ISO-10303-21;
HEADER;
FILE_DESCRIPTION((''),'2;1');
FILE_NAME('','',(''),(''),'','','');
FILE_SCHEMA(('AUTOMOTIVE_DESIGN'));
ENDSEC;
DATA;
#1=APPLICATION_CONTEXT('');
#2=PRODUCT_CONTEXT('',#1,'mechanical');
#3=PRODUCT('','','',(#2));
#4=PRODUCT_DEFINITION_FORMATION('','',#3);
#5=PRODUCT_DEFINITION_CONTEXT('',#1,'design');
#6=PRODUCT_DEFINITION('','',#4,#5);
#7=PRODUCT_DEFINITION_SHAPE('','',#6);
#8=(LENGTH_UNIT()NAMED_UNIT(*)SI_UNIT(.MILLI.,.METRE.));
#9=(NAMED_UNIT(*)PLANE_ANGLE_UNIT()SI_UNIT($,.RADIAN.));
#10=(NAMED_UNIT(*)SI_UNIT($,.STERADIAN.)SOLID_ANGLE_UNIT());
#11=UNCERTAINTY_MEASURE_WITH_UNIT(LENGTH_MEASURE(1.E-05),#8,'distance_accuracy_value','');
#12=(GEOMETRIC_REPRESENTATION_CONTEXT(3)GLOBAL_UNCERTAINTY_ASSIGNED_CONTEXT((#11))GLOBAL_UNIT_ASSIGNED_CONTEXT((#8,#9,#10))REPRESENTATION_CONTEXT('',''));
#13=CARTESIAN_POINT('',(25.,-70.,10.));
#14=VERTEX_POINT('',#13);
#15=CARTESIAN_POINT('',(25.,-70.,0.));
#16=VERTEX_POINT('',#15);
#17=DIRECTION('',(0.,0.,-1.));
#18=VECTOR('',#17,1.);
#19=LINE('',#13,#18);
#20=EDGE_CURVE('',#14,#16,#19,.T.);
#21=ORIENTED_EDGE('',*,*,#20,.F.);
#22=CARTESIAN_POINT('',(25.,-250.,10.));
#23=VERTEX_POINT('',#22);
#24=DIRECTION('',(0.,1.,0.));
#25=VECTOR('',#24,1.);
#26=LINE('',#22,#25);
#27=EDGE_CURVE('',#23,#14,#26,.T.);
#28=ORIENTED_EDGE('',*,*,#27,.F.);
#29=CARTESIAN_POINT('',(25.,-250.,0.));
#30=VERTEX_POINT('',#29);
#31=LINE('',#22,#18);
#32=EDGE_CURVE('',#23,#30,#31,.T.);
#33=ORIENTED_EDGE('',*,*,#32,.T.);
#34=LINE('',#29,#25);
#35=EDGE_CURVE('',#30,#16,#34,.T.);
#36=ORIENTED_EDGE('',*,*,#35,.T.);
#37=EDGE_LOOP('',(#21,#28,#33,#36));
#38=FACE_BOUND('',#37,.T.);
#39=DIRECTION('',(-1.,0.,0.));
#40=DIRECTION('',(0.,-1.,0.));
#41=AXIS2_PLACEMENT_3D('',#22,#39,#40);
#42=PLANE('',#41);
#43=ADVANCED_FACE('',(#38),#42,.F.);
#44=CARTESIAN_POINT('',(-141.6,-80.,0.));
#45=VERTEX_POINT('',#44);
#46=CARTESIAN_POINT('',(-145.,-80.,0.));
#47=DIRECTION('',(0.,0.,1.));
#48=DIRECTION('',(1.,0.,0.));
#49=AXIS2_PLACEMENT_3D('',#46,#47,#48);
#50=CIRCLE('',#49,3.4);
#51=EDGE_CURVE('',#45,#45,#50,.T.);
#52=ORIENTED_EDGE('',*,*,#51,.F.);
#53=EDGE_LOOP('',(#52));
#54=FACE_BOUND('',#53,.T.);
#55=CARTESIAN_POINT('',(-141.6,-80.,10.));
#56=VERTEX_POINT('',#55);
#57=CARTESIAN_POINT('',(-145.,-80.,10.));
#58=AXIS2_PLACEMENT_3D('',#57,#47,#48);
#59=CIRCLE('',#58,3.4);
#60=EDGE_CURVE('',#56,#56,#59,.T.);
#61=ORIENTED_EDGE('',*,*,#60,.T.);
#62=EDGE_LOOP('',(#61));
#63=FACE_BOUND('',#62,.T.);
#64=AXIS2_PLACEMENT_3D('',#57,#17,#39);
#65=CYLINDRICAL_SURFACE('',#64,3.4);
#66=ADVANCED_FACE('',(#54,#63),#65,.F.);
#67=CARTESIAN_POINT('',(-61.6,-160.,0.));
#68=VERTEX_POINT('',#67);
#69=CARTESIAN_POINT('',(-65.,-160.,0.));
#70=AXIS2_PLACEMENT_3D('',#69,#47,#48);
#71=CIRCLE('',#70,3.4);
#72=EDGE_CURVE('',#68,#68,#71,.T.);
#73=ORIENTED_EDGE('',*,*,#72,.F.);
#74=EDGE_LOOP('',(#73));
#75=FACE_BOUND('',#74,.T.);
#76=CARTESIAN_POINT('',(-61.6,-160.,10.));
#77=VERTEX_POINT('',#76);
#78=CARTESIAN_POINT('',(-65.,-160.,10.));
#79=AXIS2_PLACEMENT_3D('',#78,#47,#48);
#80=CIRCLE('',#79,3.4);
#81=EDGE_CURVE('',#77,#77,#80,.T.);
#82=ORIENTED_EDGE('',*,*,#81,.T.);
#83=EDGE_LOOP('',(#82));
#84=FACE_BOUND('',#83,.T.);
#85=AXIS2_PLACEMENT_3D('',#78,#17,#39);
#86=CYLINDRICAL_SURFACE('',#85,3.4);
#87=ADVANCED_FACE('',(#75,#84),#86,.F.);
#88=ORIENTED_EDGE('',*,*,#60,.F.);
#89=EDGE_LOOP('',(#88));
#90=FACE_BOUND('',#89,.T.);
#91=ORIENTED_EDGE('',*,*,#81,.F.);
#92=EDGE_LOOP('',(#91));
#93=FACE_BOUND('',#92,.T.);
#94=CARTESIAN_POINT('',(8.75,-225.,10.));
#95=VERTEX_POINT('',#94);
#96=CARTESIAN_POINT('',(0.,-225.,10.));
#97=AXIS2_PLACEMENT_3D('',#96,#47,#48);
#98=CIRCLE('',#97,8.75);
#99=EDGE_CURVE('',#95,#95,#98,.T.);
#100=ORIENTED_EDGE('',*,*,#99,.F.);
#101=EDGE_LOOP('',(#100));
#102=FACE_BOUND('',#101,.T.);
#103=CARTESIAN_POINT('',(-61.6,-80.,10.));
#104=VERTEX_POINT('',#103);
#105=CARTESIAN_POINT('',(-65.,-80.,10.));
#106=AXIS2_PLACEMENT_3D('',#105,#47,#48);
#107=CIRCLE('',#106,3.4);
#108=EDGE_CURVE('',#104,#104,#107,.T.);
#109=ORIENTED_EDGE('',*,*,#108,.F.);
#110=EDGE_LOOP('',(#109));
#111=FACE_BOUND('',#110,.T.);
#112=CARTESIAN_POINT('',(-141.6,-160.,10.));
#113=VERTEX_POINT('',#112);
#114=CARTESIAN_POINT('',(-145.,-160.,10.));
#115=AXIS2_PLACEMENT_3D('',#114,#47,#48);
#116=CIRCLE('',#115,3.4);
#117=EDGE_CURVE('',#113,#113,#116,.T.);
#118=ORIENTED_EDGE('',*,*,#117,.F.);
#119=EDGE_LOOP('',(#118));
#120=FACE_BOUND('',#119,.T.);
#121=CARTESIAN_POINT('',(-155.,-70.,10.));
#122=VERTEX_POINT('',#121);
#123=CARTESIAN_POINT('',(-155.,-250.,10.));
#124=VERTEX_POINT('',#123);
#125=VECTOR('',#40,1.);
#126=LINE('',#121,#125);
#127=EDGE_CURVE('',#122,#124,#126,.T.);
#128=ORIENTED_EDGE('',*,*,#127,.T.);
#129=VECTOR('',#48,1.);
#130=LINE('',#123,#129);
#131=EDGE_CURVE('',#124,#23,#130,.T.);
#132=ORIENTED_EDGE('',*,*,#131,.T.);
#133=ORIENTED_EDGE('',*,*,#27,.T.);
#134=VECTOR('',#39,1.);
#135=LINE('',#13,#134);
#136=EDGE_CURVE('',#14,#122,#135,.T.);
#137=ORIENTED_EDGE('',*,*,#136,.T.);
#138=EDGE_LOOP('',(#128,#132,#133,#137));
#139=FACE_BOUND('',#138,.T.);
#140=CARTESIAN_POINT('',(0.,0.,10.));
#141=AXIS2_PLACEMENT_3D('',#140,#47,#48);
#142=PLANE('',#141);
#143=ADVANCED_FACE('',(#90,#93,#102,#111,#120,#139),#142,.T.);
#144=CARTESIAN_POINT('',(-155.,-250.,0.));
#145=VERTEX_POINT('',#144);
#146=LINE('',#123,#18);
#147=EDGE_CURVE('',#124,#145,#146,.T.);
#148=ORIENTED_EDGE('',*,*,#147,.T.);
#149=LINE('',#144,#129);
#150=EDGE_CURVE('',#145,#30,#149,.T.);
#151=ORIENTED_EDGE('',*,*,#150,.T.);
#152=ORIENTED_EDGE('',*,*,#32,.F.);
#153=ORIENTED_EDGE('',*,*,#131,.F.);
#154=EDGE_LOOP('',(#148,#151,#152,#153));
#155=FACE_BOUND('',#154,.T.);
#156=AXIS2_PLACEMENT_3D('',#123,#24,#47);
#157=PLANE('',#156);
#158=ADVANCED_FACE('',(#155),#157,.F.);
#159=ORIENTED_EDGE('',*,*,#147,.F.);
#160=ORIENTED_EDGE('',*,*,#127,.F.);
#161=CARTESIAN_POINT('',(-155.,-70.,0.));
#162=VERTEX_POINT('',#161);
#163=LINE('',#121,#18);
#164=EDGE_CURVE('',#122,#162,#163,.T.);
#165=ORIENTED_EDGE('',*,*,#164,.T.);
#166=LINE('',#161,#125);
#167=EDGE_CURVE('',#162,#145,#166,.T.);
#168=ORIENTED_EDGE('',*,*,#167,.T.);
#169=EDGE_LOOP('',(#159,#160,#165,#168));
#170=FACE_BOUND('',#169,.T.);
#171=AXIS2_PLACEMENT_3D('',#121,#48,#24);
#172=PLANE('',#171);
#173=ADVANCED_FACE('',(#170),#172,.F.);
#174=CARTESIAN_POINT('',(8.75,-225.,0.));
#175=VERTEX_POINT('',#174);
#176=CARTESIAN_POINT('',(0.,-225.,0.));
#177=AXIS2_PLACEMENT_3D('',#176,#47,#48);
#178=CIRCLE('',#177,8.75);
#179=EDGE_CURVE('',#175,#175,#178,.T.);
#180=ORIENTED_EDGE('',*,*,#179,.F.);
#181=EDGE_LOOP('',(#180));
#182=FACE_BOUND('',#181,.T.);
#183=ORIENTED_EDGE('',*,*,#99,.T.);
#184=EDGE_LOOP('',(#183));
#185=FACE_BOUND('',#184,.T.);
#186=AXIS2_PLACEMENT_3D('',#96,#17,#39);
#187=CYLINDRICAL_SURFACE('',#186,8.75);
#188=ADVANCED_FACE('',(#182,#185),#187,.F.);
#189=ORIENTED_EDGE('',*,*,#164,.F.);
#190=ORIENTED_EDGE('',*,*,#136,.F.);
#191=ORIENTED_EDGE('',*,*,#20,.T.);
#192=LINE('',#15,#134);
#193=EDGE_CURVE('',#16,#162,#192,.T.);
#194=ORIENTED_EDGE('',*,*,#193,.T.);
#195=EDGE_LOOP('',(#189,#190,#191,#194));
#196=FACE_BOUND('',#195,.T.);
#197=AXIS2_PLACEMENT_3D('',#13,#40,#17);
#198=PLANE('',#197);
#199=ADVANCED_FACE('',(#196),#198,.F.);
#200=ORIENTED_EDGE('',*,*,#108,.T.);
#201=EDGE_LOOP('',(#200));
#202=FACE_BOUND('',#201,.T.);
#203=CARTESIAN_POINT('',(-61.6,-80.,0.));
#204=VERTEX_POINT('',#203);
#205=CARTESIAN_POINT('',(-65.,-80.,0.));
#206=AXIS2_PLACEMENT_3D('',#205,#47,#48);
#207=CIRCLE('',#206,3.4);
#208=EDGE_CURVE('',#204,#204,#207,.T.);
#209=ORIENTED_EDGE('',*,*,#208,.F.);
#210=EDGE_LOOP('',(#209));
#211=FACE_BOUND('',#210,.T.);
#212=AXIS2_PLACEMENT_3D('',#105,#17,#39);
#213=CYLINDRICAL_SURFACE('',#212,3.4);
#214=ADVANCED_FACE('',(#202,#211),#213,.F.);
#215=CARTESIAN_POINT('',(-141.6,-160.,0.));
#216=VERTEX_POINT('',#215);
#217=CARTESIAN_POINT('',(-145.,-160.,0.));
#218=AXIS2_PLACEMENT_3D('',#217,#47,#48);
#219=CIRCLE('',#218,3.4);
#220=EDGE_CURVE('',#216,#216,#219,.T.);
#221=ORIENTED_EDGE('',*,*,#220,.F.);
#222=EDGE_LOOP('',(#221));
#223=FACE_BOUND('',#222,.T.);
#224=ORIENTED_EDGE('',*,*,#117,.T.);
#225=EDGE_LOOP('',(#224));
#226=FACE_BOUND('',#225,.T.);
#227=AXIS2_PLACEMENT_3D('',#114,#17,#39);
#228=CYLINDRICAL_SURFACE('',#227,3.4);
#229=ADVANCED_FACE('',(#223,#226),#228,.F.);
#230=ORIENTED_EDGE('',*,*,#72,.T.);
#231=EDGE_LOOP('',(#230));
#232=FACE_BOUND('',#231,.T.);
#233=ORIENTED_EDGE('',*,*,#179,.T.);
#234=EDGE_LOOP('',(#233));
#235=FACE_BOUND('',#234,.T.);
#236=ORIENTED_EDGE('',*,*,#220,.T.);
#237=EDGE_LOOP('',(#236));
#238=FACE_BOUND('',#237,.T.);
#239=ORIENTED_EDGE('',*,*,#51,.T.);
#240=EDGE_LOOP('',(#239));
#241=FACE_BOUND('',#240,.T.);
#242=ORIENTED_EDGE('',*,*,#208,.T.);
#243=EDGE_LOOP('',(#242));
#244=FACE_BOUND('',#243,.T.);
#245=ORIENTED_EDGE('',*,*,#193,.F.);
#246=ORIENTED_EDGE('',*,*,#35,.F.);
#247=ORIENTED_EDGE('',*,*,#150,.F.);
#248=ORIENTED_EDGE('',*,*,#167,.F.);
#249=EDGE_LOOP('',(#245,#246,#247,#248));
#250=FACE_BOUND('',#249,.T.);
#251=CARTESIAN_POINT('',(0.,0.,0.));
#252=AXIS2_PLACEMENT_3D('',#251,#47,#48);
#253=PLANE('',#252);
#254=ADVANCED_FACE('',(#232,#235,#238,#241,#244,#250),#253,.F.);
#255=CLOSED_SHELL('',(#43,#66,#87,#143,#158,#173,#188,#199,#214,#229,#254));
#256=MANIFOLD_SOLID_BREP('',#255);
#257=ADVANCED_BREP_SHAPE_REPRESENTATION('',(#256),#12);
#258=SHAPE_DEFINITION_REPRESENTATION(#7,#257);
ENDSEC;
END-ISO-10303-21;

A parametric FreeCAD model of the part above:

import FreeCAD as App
import Part
import Sketcher

V = App.Vector
Q = App.Units.Quantity

doc = App.newDocument("Part")
params = doc.addObject("Spreadsheet::Sheet", "Params")
for row, (alias, value) in enumerate([
    ("sketch1_diameter", "6.8 mm"),
    ("sketch1_diameter2", "17.5 mm"),
    ("sketch1_width", "180 mm"),
    ("pad1_length", "10 mm"),
], start=1):
    params.set(f"A{row}", alias)
    params.set(f"B{row}", "=" + value)
    params.setAlias(f"B{row}", alias)

body = doc.addObject("PartDesign::Body", "Body")

sketch1 = body.newObject("Sketcher::SketchObject", "Sketch")
sketch1.AttachmentSupport = (doc.getObject("XY_Plane"), [""])
sketch1.MapMode = "FlatFace"
sketch1.addGeometry([
    Part.LineSegment(V(25, -250, 0), V(25, -70, 0)),
    Part.LineSegment(V(25, -70, 0), V(-155, -70, 0)),
    Part.LineSegment(V(-155, -70, 0), V(-155, -250, 0)),
    Part.LineSegment(V(-155, -250, 0), V(25, -250, 0)),
    Part.Circle(V(-65, -80, 0), V(0, 0, 1), 3.4),
    Part.Circle(V(-145, -80, 0), V(0, 0, 1), 3.4),
    Part.Circle(V(-65, -160, 0), V(0, 0, 1), 3.4),
    Part.Circle(V(0, -225, 0), V(0, 0, 1), 8.8),
    Part.Circle(V(-145, -160, 0), V(0, 0, 1), 3.4),
], False)
sketch1.addConstraint([
    Sketcher.Constraint("Coincident", 0, 2, 1, 1),
    Sketcher.Constraint("Coincident", 1, 2, 2, 1),
    Sketcher.Constraint("Coincident", 2, 2, 3, 1),
    Sketcher.Constraint("Coincident", 3, 2, 0, 1),
    Sketcher.Constraint("Vertical", 0),
    Sketcher.Constraint("Horizontal", 1),
    Sketcher.Constraint("Vertical", 2),
    Sketcher.Constraint("Horizontal", 3),
    Sketcher.Constraint("Equal", 4, 5),
    Sketcher.Constraint("Equal", 5, 6),
    Sketcher.Constraint("Equal", 6, 8),
    Sketcher.Constraint("PointOnObject", 7, 3, -2),
    Sketcher.Constraint("Horizontal", 4, 3, 5, 3),
    Sketcher.Constraint("Horizontal", 6, 3, 8, 3),
    Sketcher.Constraint("Vertical", 4, 3, 6, 3),
    Sketcher.Constraint("Vertical", 5, 3, 8, 3),
    Sketcher.Constraint("Equal", 3, 0),
    Sketcher.Constraint("Diameter", 4, Q("6.8 mm")),
    Sketcher.Constraint("Diameter", 7, Q("17.5 mm")),
    Sketcher.Constraint("DistanceX", 1, 2, 1, 1, Q("180 mm")),
    Sketcher.Constraint("DistanceX", 4, 3, -1, 1, Q("65 mm")),
    Sketcher.Constraint("DistanceY", 4, 3, -1, 1, Q("80 mm")),
    Sketcher.Constraint("DistanceX", 5, 3, -1, 1, Q("145 mm")),
    Sketcher.Constraint("DistanceY", 6, 3, -1, 1, Q("160 mm")),
    Sketcher.Constraint("DistanceY", 7, 3, -1, 1, Q("225 mm")),
    Sketcher.Constraint("DistanceX", -1, 1, 0, 2, Q("25 mm")),
    Sketcher.Constraint("DistanceY", 0, 2, -1, 1, Q("70 mm")),
])
sketch1.setExpression("Constraints[17]", "Params.sketch1_diameter")
sketch1.setExpression("Constraints[18]", "Params.sketch1_diameter2")
sketch1.setExpression("Constraints[19]", "Params.sketch1_width")
pad1 = body.newObject("PartDesign::Pad", "Pad")
pad1.Profile = sketch1
pad1.setExpression("Length", "Params.pad1_length")

doc.recompute()
